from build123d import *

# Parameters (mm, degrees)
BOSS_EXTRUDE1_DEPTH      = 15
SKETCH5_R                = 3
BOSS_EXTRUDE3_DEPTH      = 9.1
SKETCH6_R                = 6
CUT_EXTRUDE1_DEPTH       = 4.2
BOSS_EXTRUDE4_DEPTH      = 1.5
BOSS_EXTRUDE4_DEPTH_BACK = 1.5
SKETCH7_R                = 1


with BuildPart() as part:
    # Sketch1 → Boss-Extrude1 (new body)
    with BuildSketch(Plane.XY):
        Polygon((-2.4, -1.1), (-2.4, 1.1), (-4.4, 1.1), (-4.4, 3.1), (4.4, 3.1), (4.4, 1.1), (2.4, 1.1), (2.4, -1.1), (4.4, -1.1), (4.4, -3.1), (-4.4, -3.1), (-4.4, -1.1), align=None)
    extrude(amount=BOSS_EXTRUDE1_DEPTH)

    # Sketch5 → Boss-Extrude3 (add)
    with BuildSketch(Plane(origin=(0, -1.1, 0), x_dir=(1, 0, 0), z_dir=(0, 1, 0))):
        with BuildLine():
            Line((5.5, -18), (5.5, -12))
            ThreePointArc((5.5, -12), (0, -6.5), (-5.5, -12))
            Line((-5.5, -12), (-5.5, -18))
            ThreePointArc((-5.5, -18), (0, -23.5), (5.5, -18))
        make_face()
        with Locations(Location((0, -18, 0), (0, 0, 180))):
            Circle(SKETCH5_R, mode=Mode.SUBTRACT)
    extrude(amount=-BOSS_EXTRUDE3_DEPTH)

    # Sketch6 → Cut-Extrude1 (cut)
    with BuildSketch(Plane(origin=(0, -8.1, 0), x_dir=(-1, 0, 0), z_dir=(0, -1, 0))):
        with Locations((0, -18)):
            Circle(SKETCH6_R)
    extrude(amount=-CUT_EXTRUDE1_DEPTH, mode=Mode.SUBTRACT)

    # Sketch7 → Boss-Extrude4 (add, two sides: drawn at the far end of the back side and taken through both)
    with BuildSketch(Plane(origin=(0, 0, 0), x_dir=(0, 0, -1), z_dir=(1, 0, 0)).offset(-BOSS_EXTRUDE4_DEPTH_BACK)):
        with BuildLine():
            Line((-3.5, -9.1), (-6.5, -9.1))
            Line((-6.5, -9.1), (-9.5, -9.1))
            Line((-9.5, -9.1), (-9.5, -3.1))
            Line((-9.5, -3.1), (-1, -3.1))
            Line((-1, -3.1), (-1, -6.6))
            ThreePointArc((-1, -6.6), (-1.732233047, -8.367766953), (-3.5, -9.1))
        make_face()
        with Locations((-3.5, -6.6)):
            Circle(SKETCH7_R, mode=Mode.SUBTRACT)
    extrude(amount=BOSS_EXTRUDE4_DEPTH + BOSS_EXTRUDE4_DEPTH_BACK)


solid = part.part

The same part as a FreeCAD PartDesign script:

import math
import FreeCAD as App
import Part
import Sketcher

V = App.Vector
Q = App.Units.Quantity


def add_polygon(sketch, points):
    """Adds a closed chain of lines whose ends are joined by coincident constraints."""
    first, n = sketch.GeometryCount, len(points)
    for a, b in zip(points, points[1:] + points[:1]):
        sketch.addGeometry(Part.LineSegment(App.Vector(*a, 0), App.Vector(*b, 0)), False)
    for i in range(n):
        sketch.addConstraint(Sketcher.Constraint("Coincident", first + i, 2, first + (i + 1) % n, 1))

doc = App.newDocument("Part")
body = doc.addObject("PartDesign::Body", "Body")

sketch1 = doc.addObject("Sketcher::SketchObject", "Sketch")
body.addObject(sketch1)
sketch1.AttachmentSupport = (doc.XY_Plane, [""])
sketch1.MapMode = "FlatFace"
add_polygon(sketch1, [(-2.4, 1.1), (-2.4, -1.1), (-4.4, -1.1), (-4.4, -3.1), (4.4, -3.1), (4.4, -1.1), (2.4, -1.1), (2.4, 1.1), (4.4, 1.1), (4.4, 3.1), (-4.4, 3.1), (-4.4, 1.1)])
sketch1.addConstraint([
    Sketcher.Constraint("Vertical", 0),
    Sketcher.Constraint("Horizontal", 1),
    Sketcher.Constraint("Vertical", 2),
    Sketcher.Constraint("Horizontal", 3),
    Sketcher.Constraint("Vertical", 4),
    Sketcher.Constraint("Horizontal", 5),
    Sketcher.Constraint("Vertical", 6),
    Sketcher.Constraint("Horizontal", 7),
    Sketcher.Constraint("Vertical", 8),
    Sketcher.Constraint("Horizontal", 9),
    Sketcher.Constraint("Vertical", 10),
    Sketcher.Constraint("Horizontal", 11),
    Sketcher.Constraint("Symmetric", 0, 2, 6, 2, -1, 1),
    Sketcher.Constraint("Symmetric", 2, 2, 8, 2, -1, 1),
    Sketcher.Constraint("Symmetric", 4, 2, 10, 2, -1, 1),
    Sketcher.Constraint("Symmetric", 1, 2, 4, 2, -2),
    Sketcher.Constraint("Equal", 11, 2),
    Sketcher.Constraint("DistanceX", 1, 2, 1, 1, Q("2 mm")),
    Sketcher.Constraint("DistanceX", 3, 1, 3, 2, Q("8.8 mm")),
    Sketcher.Constraint("DistanceY", 0, 2, 0, 1, Q("2.2 mm")),
])
pad1 = doc.addObject("PartDesign::Pad", "Pad")
body.addObject(pad1)
pad1.Profile = sketch1
pad1.Length = 15

sketch2 = doc.addObject("Sketcher::SketchObject", "Sketch001")
body.addObject(sketch2)
sketch2.AttachmentSupport = (doc.XZ_Plane, [""])
sketch2.MapMode = "FlatFace"
sketch2.AttachmentOffset = App.Placement(V(0, 0, 1.1), App.Rotation())
sketch2.addGeometry([
    Part.LineSegment(V(5.5, 18, 0), V(5.5, 12, 0)),
    Part.ArcOfCircle(Part.Circle(V(0, 12, 0), V(0, 0, 1), 5.5), math.radians(180), math.radians(360)),
    Part.LineSegment(V(-5.5, 12, 0), V(-5.5, 18, 0)),
    Part.ArcOfCircle(Part.Circle(V(0, 18, 0), V(0, 0, 1), 5.5), math.radians(0), math.radians(180)),
    Part.Circle(V(0, 18, 0), V(0, 0, 1), 3),
], False)
sketch2.addConstraint([
    Sketcher.Constraint("Tangent", 0, 2, 1, 2),
    Sketcher.Constraint("Tangent", 1, 1, 2, 1),
    Sketcher.Constraint("Tangent", 2, 2, 3, 2),
    Sketcher.Constraint("Tangent", 3, 1, 0, 1),
    Sketcher.Constraint("Vertical", 0),
    Sketcher.Constraint("Vertical", 2),
    Sketcher.Constraint("Coincident", 4, 3, 3, 3),
    Sketcher.Constraint("PointOnObject", 1, 3, -2),
    Sketcher.Constraint("Diameter", 4, Q("6 mm")),
    Sketcher.Constraint("Radius", 1, Q("5.5 mm")),
    Sketcher.Constraint("DistanceY", 0, 2, 0, 1, Q("6 mm")),
    Sketcher.Constraint("DistanceY", -1, 1, 1, 3, Q("12 mm")),
])
pad2 = doc.addObject("PartDesign::Pad", "Pad001")
body.addObject(pad2)
pad2.Profile = sketch2
pad2.Length = 9.1

sketch3 = doc.addObject("Sketcher::SketchObject", "Sketch002")
body.addObject(sketch3)
sketch3.AttachmentSupport = (doc.XZ_Plane, [""])
sketch3.MapMode = "FlatFace"
sketch3.AttachmentOffset = App.Placement(V(0, 0, 8.1), App.Rotation())
sketch3.addGeometry(Part.Circle(V(0, 18, 0), V(0, 0, 1), 6), False)
sketch3.addConstraint([
    Sketcher.Constraint("PointOnObject", 0, 3, -2),
    Sketcher.Constraint("Diameter", 0, Q("12 mm")),
    Sketcher.Constraint("DistanceY", -1, 1, 0, 3, Q("18 mm")),
])
pocket1 = doc.addObject("PartDesign::Pocket", "Pocket")
body.addObject(pocket1)
pocket1.Profile = sketch3
pocket1.Length = 4.2

sketch4 = doc.addObject("Sketcher::SketchObject", "Sketch003")
body.addObject(sketch4)
sketch4.AttachmentSupport = (doc.YZ_Plane, [""])
sketch4.MapMode = "FlatFace"
sketch4.addGeometry([
    Part.LineSegment(V(-9.1, 9.5, 0), V(-9.1, 3.5, 0)),
    Part.ArcOfCircle(Part.Circle(V(-6.6, 3.5, 0), V(0, 0, 1), 2.5), math.radians(180), math.radians(270)),
    Part.LineSegment(V(-6.6, 1, 0), V(-3.1, 1, 0)),
    Part.LineSegment(V(-3.1, 1, 0), V(-3.1, 9.5, 0)),
    Part.LineSegment(V(-3.1, 9.5, 0), V(-9.1, 9.5, 0)),
    Part.Circle(V(-6.6, 3.5, 0), V(0, 0, 1), 1),
], False)
sketch4.addConstraint([
    Sketcher.Constraint("Tangent", 0, 2, 1, 1),
    Sketcher.Constraint("Tangent", 1, 2, 2, 1),
    Sketcher.Constraint("Coincident", 2, 2, 3, 1),
    Sketcher.Constraint("Coincident", 3, 2, 4, 1),
    Sketcher.Constraint("Coincident", 4, 2, 0, 1),
    Sketcher.Constraint("Vertical", 0),
    Sketcher.Constraint("Horizontal", 2),
    Sketcher.Constraint("Vertical", 3),
    Sketcher.Constraint("Horizontal", 4),
    Sketcher.Constraint("Coincident", 5, 3, 1, 3),
    Sketcher.Constraint("Equal", 4, 0),
    Sketcher.Constraint("Diameter", 5, Q("2 mm")),
    Sketcher.Constraint("Radius", 1, Q("2.5 mm")),
    Sketcher.Constraint("DistanceX", 4, 2, 4, 1, Q("6 mm")),
    Sketcher.Constraint("DistanceY", -1, 1, 1, 2, Q("1 mm")),
    Sketcher.Constraint("DistanceX", 1, 3, -1, 1, Q("6.6 mm")),
])
pad3 = doc.addObject("PartDesign::Pad", "Pad002")
body.addObject(pad3)
pad3.Profile = sketch4
pad3.Type = "TwoLengths"
pad3.Length = 1.5
pad3.Length2 = 1.5

doc.recompute()
